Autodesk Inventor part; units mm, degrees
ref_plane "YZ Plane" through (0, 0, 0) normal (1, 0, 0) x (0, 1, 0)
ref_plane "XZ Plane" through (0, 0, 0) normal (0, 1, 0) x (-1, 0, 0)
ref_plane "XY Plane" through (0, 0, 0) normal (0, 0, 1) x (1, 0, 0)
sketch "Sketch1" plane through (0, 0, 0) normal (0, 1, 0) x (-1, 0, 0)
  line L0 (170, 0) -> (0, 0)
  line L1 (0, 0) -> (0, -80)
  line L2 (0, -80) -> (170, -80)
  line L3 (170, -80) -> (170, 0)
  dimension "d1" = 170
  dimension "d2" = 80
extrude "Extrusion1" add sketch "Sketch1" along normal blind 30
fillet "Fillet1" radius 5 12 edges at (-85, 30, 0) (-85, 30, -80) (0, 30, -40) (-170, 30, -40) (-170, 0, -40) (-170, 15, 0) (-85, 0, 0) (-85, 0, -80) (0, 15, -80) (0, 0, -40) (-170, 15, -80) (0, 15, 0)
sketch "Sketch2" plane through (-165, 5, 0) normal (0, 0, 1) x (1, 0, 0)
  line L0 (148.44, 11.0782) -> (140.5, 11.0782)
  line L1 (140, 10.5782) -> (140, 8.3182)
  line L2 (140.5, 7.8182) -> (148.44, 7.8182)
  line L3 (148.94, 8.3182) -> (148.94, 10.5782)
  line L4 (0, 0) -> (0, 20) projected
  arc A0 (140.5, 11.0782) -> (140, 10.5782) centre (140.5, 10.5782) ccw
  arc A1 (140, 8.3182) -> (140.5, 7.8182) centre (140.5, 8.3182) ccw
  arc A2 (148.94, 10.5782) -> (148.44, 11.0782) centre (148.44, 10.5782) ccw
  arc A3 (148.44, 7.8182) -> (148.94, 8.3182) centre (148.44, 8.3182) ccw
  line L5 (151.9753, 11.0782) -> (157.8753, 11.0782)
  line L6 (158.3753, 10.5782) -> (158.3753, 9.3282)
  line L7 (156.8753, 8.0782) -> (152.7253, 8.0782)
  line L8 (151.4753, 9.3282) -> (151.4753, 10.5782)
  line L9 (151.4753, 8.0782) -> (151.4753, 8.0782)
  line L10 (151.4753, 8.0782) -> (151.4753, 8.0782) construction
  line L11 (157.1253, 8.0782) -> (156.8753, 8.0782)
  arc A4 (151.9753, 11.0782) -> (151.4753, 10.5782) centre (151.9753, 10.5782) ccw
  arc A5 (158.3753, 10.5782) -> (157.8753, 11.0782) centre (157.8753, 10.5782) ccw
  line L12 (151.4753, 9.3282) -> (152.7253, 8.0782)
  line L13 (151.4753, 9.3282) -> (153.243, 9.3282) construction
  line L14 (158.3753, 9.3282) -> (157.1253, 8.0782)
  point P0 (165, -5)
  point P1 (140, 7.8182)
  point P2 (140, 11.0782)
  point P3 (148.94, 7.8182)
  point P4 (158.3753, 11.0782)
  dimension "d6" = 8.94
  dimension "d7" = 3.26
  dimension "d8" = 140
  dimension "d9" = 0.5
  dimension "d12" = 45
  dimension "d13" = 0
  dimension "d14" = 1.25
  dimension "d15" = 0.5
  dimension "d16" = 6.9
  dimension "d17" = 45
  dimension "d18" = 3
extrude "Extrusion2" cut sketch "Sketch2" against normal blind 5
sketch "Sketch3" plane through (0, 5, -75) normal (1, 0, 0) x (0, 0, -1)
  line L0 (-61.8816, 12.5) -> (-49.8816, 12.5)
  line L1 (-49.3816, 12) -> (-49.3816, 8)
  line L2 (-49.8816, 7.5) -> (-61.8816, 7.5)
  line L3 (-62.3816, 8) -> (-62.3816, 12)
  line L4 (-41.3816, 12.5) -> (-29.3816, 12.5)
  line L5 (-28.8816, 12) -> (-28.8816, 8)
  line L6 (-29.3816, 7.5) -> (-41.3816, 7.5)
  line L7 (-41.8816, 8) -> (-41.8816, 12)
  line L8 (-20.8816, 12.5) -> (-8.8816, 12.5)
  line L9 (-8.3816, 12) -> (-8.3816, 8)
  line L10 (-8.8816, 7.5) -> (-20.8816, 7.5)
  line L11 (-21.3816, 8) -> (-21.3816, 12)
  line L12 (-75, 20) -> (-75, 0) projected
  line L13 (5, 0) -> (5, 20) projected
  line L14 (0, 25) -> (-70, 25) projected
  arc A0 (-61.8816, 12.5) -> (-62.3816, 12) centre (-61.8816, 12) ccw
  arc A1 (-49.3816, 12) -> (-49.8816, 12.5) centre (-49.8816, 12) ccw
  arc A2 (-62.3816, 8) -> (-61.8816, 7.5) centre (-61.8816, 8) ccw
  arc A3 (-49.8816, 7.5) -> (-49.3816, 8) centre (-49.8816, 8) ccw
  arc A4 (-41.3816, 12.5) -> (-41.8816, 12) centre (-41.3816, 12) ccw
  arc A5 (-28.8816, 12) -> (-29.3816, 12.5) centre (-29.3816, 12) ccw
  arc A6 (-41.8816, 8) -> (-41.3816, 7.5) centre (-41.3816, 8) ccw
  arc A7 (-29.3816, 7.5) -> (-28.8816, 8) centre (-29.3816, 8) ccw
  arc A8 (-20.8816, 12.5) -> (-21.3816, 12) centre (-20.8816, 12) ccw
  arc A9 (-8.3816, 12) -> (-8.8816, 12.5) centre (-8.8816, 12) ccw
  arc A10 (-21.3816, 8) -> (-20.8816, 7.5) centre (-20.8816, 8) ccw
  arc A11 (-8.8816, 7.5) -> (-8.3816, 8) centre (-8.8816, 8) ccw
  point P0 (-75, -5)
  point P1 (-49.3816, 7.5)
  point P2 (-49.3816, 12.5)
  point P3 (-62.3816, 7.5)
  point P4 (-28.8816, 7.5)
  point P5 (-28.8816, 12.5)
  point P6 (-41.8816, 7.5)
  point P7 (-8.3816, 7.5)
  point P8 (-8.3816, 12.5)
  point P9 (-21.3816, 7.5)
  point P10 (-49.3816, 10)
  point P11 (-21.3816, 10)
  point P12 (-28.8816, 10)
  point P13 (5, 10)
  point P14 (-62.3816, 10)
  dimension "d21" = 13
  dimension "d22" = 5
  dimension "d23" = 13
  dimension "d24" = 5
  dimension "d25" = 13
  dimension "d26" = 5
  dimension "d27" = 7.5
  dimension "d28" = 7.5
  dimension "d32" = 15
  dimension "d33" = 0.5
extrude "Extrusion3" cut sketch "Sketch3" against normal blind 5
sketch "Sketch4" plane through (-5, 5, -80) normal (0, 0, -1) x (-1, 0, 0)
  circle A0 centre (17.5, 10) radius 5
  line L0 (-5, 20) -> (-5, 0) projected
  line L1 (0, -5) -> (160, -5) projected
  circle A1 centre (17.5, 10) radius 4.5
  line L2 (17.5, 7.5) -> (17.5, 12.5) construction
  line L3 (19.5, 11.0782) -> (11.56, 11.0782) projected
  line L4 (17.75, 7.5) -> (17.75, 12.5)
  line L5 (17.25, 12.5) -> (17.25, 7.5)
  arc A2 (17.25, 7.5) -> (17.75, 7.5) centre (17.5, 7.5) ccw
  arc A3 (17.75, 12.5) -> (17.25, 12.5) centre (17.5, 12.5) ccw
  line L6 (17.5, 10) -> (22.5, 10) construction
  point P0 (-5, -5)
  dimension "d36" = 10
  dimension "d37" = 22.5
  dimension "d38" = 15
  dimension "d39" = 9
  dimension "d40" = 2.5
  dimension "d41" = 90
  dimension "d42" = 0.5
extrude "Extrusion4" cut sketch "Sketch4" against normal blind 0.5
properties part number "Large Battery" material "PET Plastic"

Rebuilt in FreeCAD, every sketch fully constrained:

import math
import FreeCAD as App
import Part
import Sketcher
Q = App.Units.Quantity

doc = App.newDocument("Part")
params = doc.addObject("Spreadsheet::Sheet", "Params")
for row, (alias, value) in enumerate([
    ("sketch1_width", "170 mm"),
    ("sketch1_height", "80 mm"),
    ("pad1_length", "30 mm"),
    ("fillet_radius", "5 mm"),
    ("sketch2_radius", "0.5 mm"),
    ("sketch2_height", "1.25 mm"),
    ("sketch2_width", "5.9 mm"),
    ("sketch2_width2", "7.94 mm"),
    ("pocket1_length", "5 mm"),
    ("sketch3_radius", "0.5 mm"),
    ("sketch3_height", "12 mm"),
    ("pocket2_length", "5 mm"),
    ("sketch4_diameter", "10 mm"),
    ("sketch4_diameter2", "9 mm"),
    ("sketch4_radius", "0.25 mm"),
    ("pocket3_length", "0.5 mm"),
], start=1):
    params.set(f"A{row}", alias)
    params.set(f"B{row}", "=" + value)
    params.setAlias(f"B{row}", alias)

body = doc.addObject("PartDesign::Body", "Body")

# Sketch on XZ plane
sketch1 = doc.addObject("Sketcher::SketchObject", "Sketch")
body.addObject(sketch1)
sketch1.AttachmentSupport = (doc.XZ_Plane, [""])
sketch1.MapMode = "FlatFace"
sketch1.addGeometry(Part.LineSegment(App.Vector(-170, -80, 0), App.Vector(-170, 0, 0)), False)
sketch1.addGeometry(Part.LineSegment(App.Vector(-170, 0, 0), App.Vector(0, 0, 0)), False)
sketch1.addGeometry(Part.LineSegment(App.Vector(0, 0, 0), App.Vector(0, -80, 0)), False)
sketch1.addGeometry(Part.LineSegment(App.Vector(0, -80, 0), App.Vector(-170, -80, 0)), False)
sketch1.addConstraint(Sketcher.Constraint("Coincident", 0, 2, 1, 1))
sketch1.addConstraint(Sketcher.Constraint("Coincident", 1, 2, 2, 1))
sketch1.addConstraint(Sketcher.Constraint("Coincident", 2, 2, 3, 1))
sketch1.addConstraint(Sketcher.Constraint("Coincident", 3, 2, 0, 1))
sketch1.addConstraint(Sketcher.Constraint("Vertical", 0))
sketch1.addConstraint(Sketcher.Constraint("Horizontal", 1))
sketch1.addConstraint(Sketcher.Constraint("Vertical", 2))
sketch1.addConstraint(Sketcher.Constraint("Horizontal", 3))
sketch1.addConstraint(Sketcher.Constraint("Coincident", 1, 2, -1, 1))
sketch1.addConstraint(Sketcher.Constraint("DistanceX", 1, 1, 1, 2, Q("170 mm")))
sketch1.addConstraint(Sketcher.Constraint("DistanceY", 0, 1, 0, 2, Q("80 mm")))
sketch1.setExpression("Constraints[9]", "Params.sketch1_width")
sketch1.setExpression("Constraints[10]", "Params.sketch1_height")
pad1 = doc.addObject("PartDesign::Pad", "Pad")
body.addObject(pad1)
pad1.Profile = sketch1
pad1.setExpression("Length", "Params.pad1_length")
pad1.Reversed = True
doc.recompute()

fillet = doc.addObject("PartDesign::Fillet", "Fillet")
body.addObject(fillet)
fillet.Base = (pad1, ["Edge1"])
fillet.UseAllEdges = True
fillet.setExpression("Radius", "Params.fillet_radius")

# Sketch on XY plane
sketch2 = doc.addObject("Sketcher::SketchObject", "Sketch001")
body.addObject(sketch2)
sketch2.AttachmentSupport = (doc.XY_Plane, [""])
sketch2.MapMode = "FlatFace"
sketch2.addGeometry(Part.ArcOfCircle(Part.Circle(App.Vector(-16.56, 15.58, 0), App.Vector(0, 0, 1), 0.5), math.radians(0), math.radians(90)), False)
sketch2.addGeometry(Part.LineSegment(App.Vector(-16.56, 16.08, 0), App.Vector(-24.5, 16.08, 0)), False)
sketch2.addGeometry(Part.ArcOfCircle(Part.Circle(App.Vector(-24.5, 15.58, 0), App.Vector(0, 0, 1), 0.5), math.radians(90), math.radians(180)), False)
sketch2.addGeometry(Part.LineSegment(App.Vector(-25, 15.58, 0), App.Vector(-25, 13.32, 0)), False)
sketch2.addGeometry(Part.ArcOfCircle(Part.Circle(App.Vector(-24.5, 13.32, 0), App.Vector(0, 0, 1), 0.5), math.radians(180), math.radians(270)), False)
sketch2.addGeometry(Part.LineSegment(App.Vector(-24.5, 12.82, 0), App.Vector(-16.56, 12.82, 0)), False)
sketch2.addGeometry(Part.ArcOfCircle(Part.Circle(App.Vector(-16.56, 13.32, 0), App.Vector(0, 0, 1), 0.5), math.radians(-90), math.radians(0)), False)
sketch2.addGeometry(Part.LineSegment(App.Vector(-16.06, 13.32, 0), App.Vector(-16.06, 15.58, 0)), False)
sketch2.addGeometry(Part.LineSegment(App.Vector(-7.12, 16.08, 0), App.Vector(-13.02, 16.08, 0)), False)
sketch2.addGeometry(Part.ArcOfCircle(Part.Circle(App.Vector(-13.02, 15.58, 0), App.Vector(0, 0, 1), 0.5), math.radians(90), math.radians(180)), False)
sketch2.addGeometry(Part.LineSegment(App.Vector(-13.52, 15.58, 0), App.Vector(-13.52, 14.33, 0)), False)
sketch2.addGeometry(Part.LineSegment(App.Vector(-13.52, 14.33, 0), App.Vector(-12.27, 13.08, 0)), False)
sketch2.addGeometry(Part.LineSegment(App.Vector(-12.27, 13.08, 0), App.Vector(-7.87, 13.08, 0)), False)
sketch2.addGeometry(Part.LineSegment(App.Vector(-7.87, 13.08, 0), App.Vector(-6.62, 14.33, 0)), False)
sketch2.addGeometry(Part.LineSegment(App.Vector(-6.62, 14.33, 0), App.Vector(-6.62, 15.58, 0)), False)
sketch2.addGeometry(Part.ArcOfCircle(Part.Circle(App.Vector(-7.12, 15.58, 0), App.Vector(0, 0, 1), 0.5), math.radians(0), math.radians(90)), False)
sketch2.addConstraint(Sketcher.Constraint("Tangent", 0, 2, 1, 1))
sketch2.addConstraint(Sketcher.Constraint("Tangent", 1, 2, 2, 1))
sketch2.addConstraint(Sketcher.Constraint("Tangent", 2, 2, 3, 1))
sketch2.addConstraint(Sketcher.Constraint("Tangent", 3, 2, 4, 1))
sketch2.addConstraint(Sketcher.Constraint("Tangent", 4, 2, 5, 1))
sketch2.addConstraint(Sketcher.Constraint("Tangent", 5, 2, 6, 1))
sketch2.addConstraint(Sketcher.Constraint("Tangent", 6, 2, 7, 1))
sketch2.addConstraint(Sketcher.Constraint("Tangent", 7, 2, 0, 1))
sketch2.addConstraint(Sketcher.Constraint("Tangent", 8, 2, 9, 1))
sketch2.addConstraint(Sketcher.Constraint("Tangent", 9, 2, 10, 1))
sketch2.addConstraint(Sketcher.Constraint("Coincident", 10, 2, 11, 1))
sketch2.addConstraint(Sketcher.Constraint("Coincident", 11, 2, 12, 1))
sketch2.addConstraint(Sketcher.Constraint("Coincident", 12, 2, 13, 1))
sketch2.addConstraint(Sketcher.Constraint("Coincident", 13, 2, 14, 1))
sketch2.addConstraint(Sketcher.Constraint("Tangent", 14, 2, 15, 1))
sketch2.addConstraint(Sketcher.Constraint("Tangent", 15, 2, 8, 1))
sketch2.addConstraint(Sketcher.Constraint("Horizontal", 1))
sketch2.addConstraint(Sketcher.Constraint("Vertical", 3))
sketch2.addConstraint(Sketcher.Constraint("Horizontal", 5))
sketch2.addConstraint(Sketcher.Constraint("Vertical", 7))
sketch2.addConstraint(Sketcher.Constraint("Horizontal", 8))
sketch2.addConstraint(Sketcher.Constraint("Vertical", 10))
sketch2.addConstraint(Sketcher.Constraint("Horizontal", 12))
sketch2.addConstraint(Sketcher.Constraint("Vertical", 14))
sketch2.addConstraint(Sketcher.Constraint("Equal", 0, 2))
sketch2.addConstraint(Sketcher.Constraint("Equal", 2, 4))
sketch2.addConstraint(Sketcher.Constraint("Equal", 4, 6))
sketch2.addConstraint(Sketcher.Constraint("Equal", 6, 9))
sketch2.addConstraint(Sketcher.Constraint("Equal", 9, 15))
sketch2.addConstraint(Sketcher.Constraint("Perpendicular", 11, 13))
sketch2.addConstraint(Sketcher.Constraint("Horizontal", 2, 3, 9, 3))
sketch2.addConstraint(Sketcher.Constraint("Horizontal", 10, 2, 13, 2))
sketch2.addConstraint(Sketcher.Constraint("Equal", 11, 13))
sketch2.addConstraint(Sketcher.Constraint("Radius", 0, Q("0.5 mm")))
sketch2.addConstraint(Sketcher.Constraint("DistanceY", 11, 2, 8, 2, Q("3 mm")))
sketch2.addConstraint(Sketcher.Constraint("DistanceY", 10, 2, 10, 1, Q("1.25 mm")))
sketch2.addConstraint(Sketcher.Constraint("DistanceY", 4, 2, 1, 2, Q("3.26 mm")))
sketch2.addConstraint(Sketcher.Constraint("DistanceX", 8, 2, 8, 1, Q("5.9 mm")))
sketch2.addConstraint(Sketcher.Constraint("DistanceX", 2, 2, -1, 1, Q("25 mm")))
sketch2.addConstraint(Sketcher.Constraint("DistanceX", 1, 2, 1, 1, Q("7.94 mm")))
sketch2.addConstraint(Sketcher.Constraint("DistanceY", -1, 1, 0, 3, Q("15.5782 mm")))
sketch2.addConstraint(Sketcher.Constraint("DistanceX", 9, 3, -1, 1, Q("13.0247 mm")))
sketch2.setExpression("Constraints[33]", "Params.sketch2_radius")
sketch2.setExpression("Constraints[35]", "Params.sketch2_height")
sketch2.setExpression("Constraints[37]", "Params.sketch2_width")
sketch2.setExpression("Constraints[39]", "Params.sketch2_width2")
pocket1 = doc.addObject("PartDesign::Pocket", "Pocket")
body.addObject(pocket1)
pocket1.Profile = sketch2
pocket1.setExpression("Length", "Params.pocket1_length")

# Sketch on YZ plane
sketch3 = doc.addObject("Sketcher::SketchObject", "Sketch002")
body.addObject(sketch3)
sketch3.AttachmentSupport = (doc.YZ_Plane, [""])
sketch3.MapMode = "FlatFace"
sketch3.addGeometry(Part.LineSegment(App.Vector(17.5, -25.1, 0), App.Vector(17.5, -13.1, 0)), False)
sketch3.addGeometry(Part.ArcOfCircle(Part.Circle(App.Vector(17, -13.1, 0), App.Vector(0, 0, 1), 0.5), math.radians(0), math.radians(90)), False)
sketch3.addGeometry(Part.LineSegment(App.Vector(17, -12.6, 0), App.Vector(13, -12.6, 0)), False)
sketch3.addGeometry(Part.ArcOfCircle(Part.Circle(App.Vector(13, -13.1, 0), App.Vector(0, 0, 1), 0.5), math.radians(90), math.radians(180)), False)
sketch3.addGeometry(Part.LineSegment(App.Vector(12.5, -13.1, 0), App.Vector(12.5, -25.1, 0)), False)
sketch3.addGeometry(Part.ArcOfCircle(Part.Circle(App.Vector(13, -25.1, 0), App.Vector(0, 0, 1), 0.5), math.radians(180), math.radians(270)), False)
sketch3.addGeometry(Part.LineSegment(App.Vector(13, -25.6, 0), App.Vector(17, -25.6, 0)), False)
sketch3.addGeometry(Part.ArcOfCircle(Part.Circle(App.Vector(17, -25.1, 0), App.Vector(0, 0, 1), 0.5), math.radians(-90), math.radians(0)), False)
sketch3.addGeometry(Part.LineSegment(App.Vector(17.5, -45.6, 0), App.Vector(17.5, -33.6, 0)), False)
sketch3.addGeometry(Part.ArcOfCircle(Part.Circle(App.Vector(17, -33.6, 0), App.Vector(0, 0, 1), 0.5), math.radians(0), math.radians(90)), False)
sketch3.addGeometry(Part.LineSegment(App.Vector(17, -33.1, 0), App.Vector(13, -33.1, 0)), False)
sketch3.addGeometry(Part.ArcOfCircle(Part.Circle(App.Vector(13, -33.6, 0), App.Vector(0, 0, 1), 0.5), math.radians(90), math.radians(180)), False)
sketch3.addGeometry(Part.LineSegment(App.Vector(12.5, -33.6, 0), App.Vector(12.5, -45.6, 0)), False)
sketch3.addGeometry(Part.ArcOfCircle(Part.Circle(App.Vector(13, -45.6, 0), App.Vector(0, 0, 1), 0.5), math.radians(180), math.radians(270)), False)
sketch3.addGeometry(Part.LineSegment(App.Vector(13, -46.1, 0), App.Vector(17, -46.1, 0)), False)
sketch3.addGeometry(Part.ArcOfCircle(Part.Circle(App.Vector(17, -45.6, 0), App.Vector(0, 0, 1), 0.5), math.radians(-90), math.radians(0)), False)
sketch3.addGeometry(Part.LineSegment(App.Vector(17.5, -66.1, 0), App.Vector(17.5, -54.1, 0)), False)
sketch3.addGeometry(Part.ArcOfCircle(Part.Circle(App.Vector(17, -54.1, 0), App.Vector(0, 0, 1), 0.5), math.radians(0), math.radians(90)), False)
sketch3.addGeometry(Part.LineSegment(App.Vector(17, -53.6, 0), App.Vector(13, -53.6, 0)), False)
sketch3.addGeometry(Part.ArcOfCircle(Part.Circle(App.Vector(13, -54.1, 0), App.Vector(0, 0, 1), 0.5), math.radians(90), math.radians(180)), False)
sketch3.addGeometry(Part.LineSegment(App.Vector(12.5, -54.1, 0), App.Vector(12.5, -66.1, 0)), False)
sketch3.addGeometry(Part.ArcOfCircle(Part.Circle(App.Vector(13, -66.1, 0), App.Vector(0, 0, 1), 0.5), math.radians(180), math.radians(270)), False)
sketch3.addGeometry(Part.LineSegment(App.Vector(13, -66.6, 0), App.Vector(17, -66.6, 0)), False)
sketch3.addGeometry(Part.ArcOfCircle(Part.Circle(App.Vector(17, -66.1, 0), App.Vector(0, 0, 1), 0.5), math.radians(-90), math.radians(0)), False)
sketch3.addConstraint(Sketcher.Constraint("Tangent", 0, 2, 1, 1))
sketch3.addConstraint(Sketcher.Constraint("Tangent", 1, 2, 2, 1))
sketch3.addConstraint(Sketcher.Constraint("Tangent", 2, 2, 3, 1))
sketch3.addConstraint(Sketcher.Constraint("Tangent", 3, 2, 4, 1))
sketch3.addConstraint(Sketcher.Constraint("Tangent", 4, 2, 5, 1))
sketch3.addConstraint(Sketcher.Constraint("Tangent", 5, 2, 6, 1))
sketch3.addConstraint(Sketcher.Constraint("Tangent", 6, 2, 7, 1))
sketch3.addConstraint(Sketcher.Constraint("Tangent", 7, 2, 0, 1))
sketch3.addConstraint(Sketcher.Constraint("Tangent", 8, 2, 9, 1))
sketch3.addConstraint(Sketcher.Constraint("Tangent", 9, 2, 10, 1))
sketch3.addConstraint(Sketcher.Constraint("Tangent", 10, 2, 11, 1))
sketch3.addConstraint(Sketcher.Constraint("Tangent", 11, 2, 12, 1))
sketch3.addConstraint(Sketcher.Constraint("Tangent", 12, 2, 13, 1))
sketch3.addConstraint(Sketcher.Constraint("Tangent", 13, 2, 14, 1))
sketch3.addConstraint(Sketcher.Constraint("Tangent", 14, 2, 15, 1))
sketch3.addConstraint(Sketcher.Constraint("Tangent", 15, 2, 8, 1))
sketch3.addConstraint(Sketcher.Constraint("Tangent", 16, 2, 17, 1))
sketch3.addConstraint(Sketcher.Constraint("Tangent", 17, 2, 18, 1))
sketch3.addConstraint(Sketcher.Constraint("Tangent", 18, 2, 19, 1))
sketch3.addConstraint(Sketcher.Constraint("Tangent", 19, 2, 20, 1))
sketch3.addConstraint(Sketcher.Constraint("Tangent", 20, 2, 21, 1))
sketch3.addConstraint(Sketcher.Constraint("Tangent", 21, 2, 22, 1))
sketch3.addConstraint(Sketcher.Constraint("Tangent", 22, 2, 23, 1))
sketch3.addConstraint(Sketcher.Constraint("Tangent", 23, 2, 16, 1))
sketch3.addConstraint(Sketcher.Constraint("Vertical", 0))
sketch3.addConstraint(Sketcher.Constraint("Horizontal", 2))
sketch3.addConstraint(Sketcher.Constraint("Vertical", 4))
sketch3.addConstraint(Sketcher.Constraint("Horizontal", 6))
sketch3.addConstraint(Sketcher.Constraint("Vertical", 8))
sketch3.addConstraint(Sketcher.Constraint("Horizontal", 10))
sketch3.addConstraint(Sketcher.Constraint("Vertical", 12))
sketch3.addConstraint(Sketcher.Constraint("Horizontal", 14))
sketch3.addConstraint(Sketcher.Constraint("Vertical", 16))
sketch3.addConstraint(Sketcher.Constraint("Horizontal", 18))
sketch3.addConstraint(Sketcher.Constraint("Vertical", 20))
sketch3.addConstraint(Sketcher.Constraint("Horizontal", 22))
sketch3.addConstraint(Sketcher.Constraint("Equal", 1, 3))
sketch3.addConstraint(Sketcher.Constraint("Equal", 3, 5))
sketch3.addConstraint(Sketcher.Constraint("Equal", 5, 7))
sketch3.addConstraint(Sketcher.Constraint("Equal", 7, 9))
sketch3.addConstraint(Sketcher.Constraint("Equal", 9, 11))
sketch3.addConstraint(Sketcher.Constraint("Equal", 11, 13))
sketch3.addConstraint(Sketcher.Constraint("Equal", 13, 15))
sketch3.addConstraint(Sketcher.Constraint("Equal", 15, 17))
sketch3.addConstraint(Sketcher.Constraint("Equal", 17, 19))
sketch3.addConstraint(Sketcher.Constraint("Equal", 19, 21))
sketch3.addConstraint(Sketcher.Constraint("Equal", 21, 23))
sketch3.addConstraint(Sketcher.Constraint("Vertical", 7, 3, 9, 3))
sketch3.addConstraint(Sketcher.Constraint("Vertical", 5, 3, 11, 3))
sketch3.addConstraint(Sketcher.Constraint("Vertical", 15, 3, 17, 3))
sketch3.addConstraint(Sketcher.Constraint("Vertical", 13, 3, 19, 3))
sketch3.addConstraint(Sketcher.Constraint("Equal", 4, 8))
sketch3.addConstraint(Sketcher.Constraint("Equal", 12, 16))
sketch3.addConstraint(Sketcher.Constraint("Radius", 1, Q("0.5 mm")))
sketch3.addConstraint(Sketcher.Constraint("DistanceX", -1, 1, 3, 3, Q("13 mm")))
sketch3.addConstraint(Sketcher.Constraint("DistanceX", 3, 2, 0, 2, Q("5 mm")))
sketch3.addConstraint(Sketcher.Constraint("DistanceY", 9, 2, 6, 2, Q("7.5 mm")))
sketch3.addConstraint(Sketcher.Constraint("DistanceY", 17, 2, 14, 2, Q("7.5 mm")))
sketch3.addConstraint(Sketcher.Constraint("DistanceY", 0, 1, 0, 2, Q("12 mm")))
sketch3.addConstraint(Sketcher.Constraint("DistanceY", 1, 3, -1, 1, Q("13.1184 mm")))
sketch3.setExpression("Constraints[53]", "Params.sketch3_radius")
sketch3.setExpression("Constraints[58]", "Params.sketch3_height")
pocket2 = doc.addObject("PartDesign::Pocket", "Pocket001")
body.addObject(pocket2)
pocket2.Profile = sketch3
pocket2.setExpression("Length", "Params.pocket2_length")

# Sketch on XY plane
sketch4 = doc.addObject("Sketcher::SketchObject", "Sketch003")
body.addObject(sketch4)
sketch4.AttachmentSupport = (doc.XY_Plane, [""])
sketch4.MapMode = "FlatFace"
sketch4.AttachmentOffset = App.Placement(App.Vector(0, 0, -80), App.Rotation())
sketch4.addGeometry(Part.LineSegment(App.Vector(-22.25, 17.5, 0), App.Vector(-22.25, 12.5, 0)), False)
sketch4.addGeometry(Part.ArcOfCircle(Part.Circle(App.Vector(-22.5, 12.5, 0), App.Vector(0, 0, 1), 0.25), math.radians(180), math.radians(360)), False)
sketch4.addGeometry(Part.LineSegment(App.Vector(-22.75, 12.5, 0), App.Vector(-22.75, 17.5, 0)), False)
sketch4.addGeometry(Part.ArcOfCircle(Part.Circle(App.Vector(-22.5, 17.5, 0), App.Vector(0, 0, 1), 0.25), math.radians(0), math.radians(180)), False)
sketch4.addGeometry(Part.Circle(App.Vector(-22.5, 15, 0), App.Vector(0, 0, 1), 5), False)
sketch4.addGeometry(Part.Circle(App.Vector(-22.5, 15, 0), App.Vector(0, 0, 1), 4.5), False)
sketch4.addConstraint(Sketcher.Constraint("Tangent", 0, 2, 1, 2))
sketch4.addConstraint(Sketcher.Constraint("Tangent", 1, 1, 2, 1))
sketch4.addConstraint(Sketcher.Constraint("Tangent", 2, 2, 3, 2))
sketch4.addConstraint(Sketcher.Constraint("Tangent", 3, 1, 0, 1))
sketch4.addConstraint(Sketcher.Constraint("Vertical", 0))
sketch4.addConstraint(Sketcher.Constraint("Vertical", 2))
sketch4.addConstraint(Sketcher.Constraint("Coincident", 5, 3, 4, 3))
sketch4.addConstraint(Sketcher.Constraint("Vertical", 3, 3, 4, 3))
sketch4.addConstraint(Sketcher.Constraint("Diameter", 4, Q("10 mm")))
sketch4.addConstraint(Sketcher.Constraint("Diameter", 5, Q("9 mm")))
sketch4.addConstraint(Sketcher.Constraint("Radius", 1, Q("0.25 mm")))
sketch4.addConstraint(Sketcher.Constraint("DistanceY", -1, 1, 4, 3, Q("15 mm")))
sketch4.addConstraint(Sketcher.Constraint("DistanceX", 1, 3, -1, 1, Q("22.5 mm")))
sketch4.addConstraint(Sketcher.Constraint("DistanceY", 1, 3, 4, 3, Q("2.5 mm")))
sketch4.addConstraint(Sketcher.Constraint("DistanceY", 4, 3, 3, 3, Q("2.5 mm")))
sketch4.setExpression("Constraints[8]", "Params.sketch4_diameter")
sketch4.setExpression("Constraints[9]", "Params.sketch4_diameter2")
sketch4.setExpression("Constraints[10]", "Params.sketch4_radius")
pocket3 = doc.addObject("PartDesign::Pocket", "Pocket002")
body.addObject(pocket3)
pocket3.Profile = sketch4
pocket3.setExpression("Length", "Params.pocket3_length")
pocket3.Reversed = True

doc.recompute()
